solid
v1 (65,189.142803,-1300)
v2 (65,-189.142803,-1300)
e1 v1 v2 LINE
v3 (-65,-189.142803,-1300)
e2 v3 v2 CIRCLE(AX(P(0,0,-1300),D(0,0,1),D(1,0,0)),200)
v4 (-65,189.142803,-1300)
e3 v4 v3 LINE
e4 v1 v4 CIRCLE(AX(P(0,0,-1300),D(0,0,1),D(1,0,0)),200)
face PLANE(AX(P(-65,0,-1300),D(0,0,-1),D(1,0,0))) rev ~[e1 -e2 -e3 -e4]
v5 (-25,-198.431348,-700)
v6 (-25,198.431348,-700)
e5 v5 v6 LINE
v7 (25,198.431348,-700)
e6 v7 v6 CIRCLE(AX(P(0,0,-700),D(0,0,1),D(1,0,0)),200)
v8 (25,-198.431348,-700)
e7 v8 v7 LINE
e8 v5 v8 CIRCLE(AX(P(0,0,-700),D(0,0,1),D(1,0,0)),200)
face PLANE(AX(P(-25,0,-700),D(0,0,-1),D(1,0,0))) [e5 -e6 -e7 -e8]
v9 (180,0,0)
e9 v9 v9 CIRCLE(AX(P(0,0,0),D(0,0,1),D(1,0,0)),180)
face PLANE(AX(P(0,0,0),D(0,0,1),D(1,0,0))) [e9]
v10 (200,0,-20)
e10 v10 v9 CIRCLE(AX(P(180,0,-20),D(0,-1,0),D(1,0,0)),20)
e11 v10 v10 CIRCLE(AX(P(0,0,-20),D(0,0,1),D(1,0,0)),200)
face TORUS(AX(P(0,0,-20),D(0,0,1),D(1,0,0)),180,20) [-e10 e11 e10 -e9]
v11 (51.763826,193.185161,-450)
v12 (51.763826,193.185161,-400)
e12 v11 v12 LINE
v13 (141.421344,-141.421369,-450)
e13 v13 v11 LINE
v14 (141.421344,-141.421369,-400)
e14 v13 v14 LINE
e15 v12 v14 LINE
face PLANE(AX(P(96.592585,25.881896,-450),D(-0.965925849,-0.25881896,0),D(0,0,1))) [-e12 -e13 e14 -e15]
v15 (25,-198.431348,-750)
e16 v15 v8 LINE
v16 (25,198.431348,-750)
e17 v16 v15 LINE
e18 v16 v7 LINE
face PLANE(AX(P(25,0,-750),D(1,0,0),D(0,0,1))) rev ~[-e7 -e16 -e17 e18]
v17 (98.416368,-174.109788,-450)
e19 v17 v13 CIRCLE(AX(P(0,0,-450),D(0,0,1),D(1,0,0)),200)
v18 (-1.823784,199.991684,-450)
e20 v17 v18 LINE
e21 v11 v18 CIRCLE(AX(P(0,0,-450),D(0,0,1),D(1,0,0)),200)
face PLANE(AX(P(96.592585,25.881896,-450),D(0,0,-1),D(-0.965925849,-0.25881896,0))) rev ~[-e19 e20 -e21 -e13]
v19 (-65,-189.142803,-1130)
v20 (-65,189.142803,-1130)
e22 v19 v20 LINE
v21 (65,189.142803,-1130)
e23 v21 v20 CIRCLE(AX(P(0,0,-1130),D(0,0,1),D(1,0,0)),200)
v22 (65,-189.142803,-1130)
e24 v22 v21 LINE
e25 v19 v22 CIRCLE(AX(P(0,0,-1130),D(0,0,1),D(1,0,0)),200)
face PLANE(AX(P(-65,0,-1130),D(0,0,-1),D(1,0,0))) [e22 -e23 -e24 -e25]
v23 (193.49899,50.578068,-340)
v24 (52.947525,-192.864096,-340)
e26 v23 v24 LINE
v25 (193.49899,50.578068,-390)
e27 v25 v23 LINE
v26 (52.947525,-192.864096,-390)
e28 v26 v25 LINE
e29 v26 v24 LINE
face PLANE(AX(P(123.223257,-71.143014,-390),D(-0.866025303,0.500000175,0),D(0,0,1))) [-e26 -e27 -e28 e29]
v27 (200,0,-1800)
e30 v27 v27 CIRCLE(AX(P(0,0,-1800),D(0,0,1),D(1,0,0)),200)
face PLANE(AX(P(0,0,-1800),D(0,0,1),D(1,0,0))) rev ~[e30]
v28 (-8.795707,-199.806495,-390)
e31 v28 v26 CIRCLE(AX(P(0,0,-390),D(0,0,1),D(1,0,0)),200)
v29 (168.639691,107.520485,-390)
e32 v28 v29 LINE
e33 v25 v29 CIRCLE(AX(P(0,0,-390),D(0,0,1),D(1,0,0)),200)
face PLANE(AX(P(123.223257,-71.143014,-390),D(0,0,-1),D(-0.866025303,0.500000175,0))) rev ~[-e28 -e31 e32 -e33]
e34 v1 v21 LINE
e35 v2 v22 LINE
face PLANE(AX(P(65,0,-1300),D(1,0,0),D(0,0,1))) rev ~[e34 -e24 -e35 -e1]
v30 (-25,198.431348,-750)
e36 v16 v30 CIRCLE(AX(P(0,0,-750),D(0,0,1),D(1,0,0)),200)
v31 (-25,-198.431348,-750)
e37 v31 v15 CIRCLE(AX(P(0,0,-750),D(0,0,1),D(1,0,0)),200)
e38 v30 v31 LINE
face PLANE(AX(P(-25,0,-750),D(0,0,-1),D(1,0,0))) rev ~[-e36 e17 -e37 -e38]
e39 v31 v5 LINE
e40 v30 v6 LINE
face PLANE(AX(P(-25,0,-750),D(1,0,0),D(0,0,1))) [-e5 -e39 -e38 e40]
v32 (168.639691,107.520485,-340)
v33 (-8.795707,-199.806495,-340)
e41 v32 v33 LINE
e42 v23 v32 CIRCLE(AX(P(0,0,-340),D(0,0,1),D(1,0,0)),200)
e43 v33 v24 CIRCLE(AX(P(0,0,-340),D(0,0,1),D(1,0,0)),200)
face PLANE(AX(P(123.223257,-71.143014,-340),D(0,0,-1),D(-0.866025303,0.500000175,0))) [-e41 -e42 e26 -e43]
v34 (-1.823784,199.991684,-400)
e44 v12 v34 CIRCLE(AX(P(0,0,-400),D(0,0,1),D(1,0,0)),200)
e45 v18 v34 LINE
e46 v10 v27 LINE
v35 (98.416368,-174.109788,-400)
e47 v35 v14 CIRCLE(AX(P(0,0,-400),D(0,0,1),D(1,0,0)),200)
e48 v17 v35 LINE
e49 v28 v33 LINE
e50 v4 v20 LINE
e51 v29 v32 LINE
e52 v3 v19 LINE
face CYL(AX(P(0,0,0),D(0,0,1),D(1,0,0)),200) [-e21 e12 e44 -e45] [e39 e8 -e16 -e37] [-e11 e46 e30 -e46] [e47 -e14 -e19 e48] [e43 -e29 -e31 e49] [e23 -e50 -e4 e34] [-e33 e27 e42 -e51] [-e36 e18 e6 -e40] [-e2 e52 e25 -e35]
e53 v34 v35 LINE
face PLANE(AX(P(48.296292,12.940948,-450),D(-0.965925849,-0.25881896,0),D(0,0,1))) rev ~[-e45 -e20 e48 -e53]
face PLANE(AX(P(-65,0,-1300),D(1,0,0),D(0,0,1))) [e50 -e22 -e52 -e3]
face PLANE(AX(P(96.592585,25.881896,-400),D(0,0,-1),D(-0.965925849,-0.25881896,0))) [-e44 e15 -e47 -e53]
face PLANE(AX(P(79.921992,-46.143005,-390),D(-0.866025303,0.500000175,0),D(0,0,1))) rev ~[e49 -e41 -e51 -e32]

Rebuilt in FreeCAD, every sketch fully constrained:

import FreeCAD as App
import Part
import Sketcher

V = App.Vector


def edges_at(feature, points):
    """Names of the edges that pass closest to the given points."""
    edges = feature.Shape.Edges
    near = lambda p: min(range(len(edges)), key=lambda i: edges[i].distToShape(Part.Vertex(*p))[0])
    return sorted({f"Edge{near(p) + 1}" for p in points})


def add_polygon(sketch, points):
    """Adds a closed chain of lines whose ends are joined by coincident constraints."""
    first, n = sketch.GeometryCount, len(points)
    for a, b in zip(points, points[1:] + points[:1]):
        sketch.addGeometry(Part.LineSegment(App.Vector(*a, 0), App.Vector(*b, 0)), False)
    for i in range(n):
        sketch.addConstraint(Sketcher.Constraint("Coincident", first + i, 2, first + (i + 1) % n, 1))

doc = App.newDocument("Part")
body = doc.addObject("PartDesign::Body", "Body")

# Sketch on XY plane
sketch1 = body.newObject("Sketcher::SketchObject", "Sketch")
sketch1.AttachmentSupport = (doc.getObject("XY_Plane"), [""])
sketch1.MapMode = "FlatFace"
sketch1.addGeometry(Part.Circle(V(0, 0, 0), V(0, 0, 1), 200), False)
sketch1.addConstraint([
    Sketcher.Constraint("Coincident", 0, 3, -1, 1),
    Sketcher.Constraint("Diameter", 0, 400.0),
])
pad1 = body.newObject("PartDesign::Pad", "Pad")
pad1.Profile = sketch1
pad1.Length = 1800
pad1.Reversed = True

# Sketch on XZ plane
sketch2 = body.newObject("Sketcher::SketchObject", "Sketch001")
sketch2.AttachmentSupport = (doc.getObject("XZ_Plane"), [""])
sketch2.MapMode = "FlatFace"
add_polygon(sketch2, [(-65, -1130), (-65, -1300), (65, -1300), (65, -1130)])  # lines 0-3
sketch2.addConstraint([
    Sketcher.Constraint("Vertical", 0),
    Sketcher.Constraint("Horizontal", 1),
    Sketcher.Constraint("Vertical", 2),
    Sketcher.Constraint("Horizontal", 3),
    Sketcher.Constraint("DistanceX", 1, 1, 1, 2, 130.0),
    Sketcher.Constraint("DistanceY", 0, 2, 0, 1, 170.0),
    Sketcher.Constraint("DistanceX", 0, 2, -1, 1, 65.0),
    Sketcher.Constraint("DistanceY", 0, 2, -1, 1, 1300.0),
])
pocket1 = body.newObject("PartDesign::Pocket", "Pocket")
pocket1.Profile = sketch2
pocket1.Length = 1000
pocket1.Midplane = True

# Sketch on XZ plane
sketch3 = body.newObject("Sketcher::SketchObject", "Sketch002")
sketch3.AttachmentSupport = (doc.getObject("XZ_Plane"), [""])
sketch3.MapMode = "FlatFace"
add_polygon(sketch3, [(-25, -700), (-25, -750), (25, -750), (25, -700)])  # lines 0-3
sketch3.addConstraint([
    Sketcher.Constraint("Vertical", 0),
    Sketcher.Constraint("Horizontal", 1),
    Sketcher.Constraint("Vertical", 2),
    Sketcher.Constraint("Horizontal", 3),
    Sketcher.Constraint("Equal", 3, 0),
    Sketcher.Constraint("DistanceX", 1, 1, 1, 2, 50.0),
    Sketcher.Constraint("DistanceX", 0, 2, -1, 1, 25.0),
    Sketcher.Constraint("DistanceY", 0, 2, -1, 1, 750.0),
])
pocket2 = body.newObject("PartDesign::Pocket", "Pocket001")
pocket2.Profile = sketch3
pocket2.Length = 1000
pocket2.Midplane = True

# Sketch on an angled plane
sketch4 = body.newObject("Sketcher::SketchObject", "Sketch003")
sketch4.Placement = App.Placement(V(0, 0, 0), App.Rotation(V(-0.965925849, -0.25881896, 0), V(0, 0, 1), V(-0.25881896, 0.965925849, 0), "ZXY"))
add_polygon(sketch4, [(-100, -400), (-100, -450), (-50, -450), (-50, -400)])  # lines 0-3
sketch4.addConstraint([
    Sketcher.Constraint("Vertical", 0),
    Sketcher.Constraint("Horizontal", 1),
    Sketcher.Constraint("Vertical", 2),
    Sketcher.Constraint("Horizontal", 3),
    Sketcher.Constraint("Equal", 3, 0),
    Sketcher.Constraint("DistanceX", 1, 1, 1, 2, 50.0),
    Sketcher.Constraint("DistanceX", 0, 2, -1, 1, 100.0),
    Sketcher.Constraint("DistanceY", 0, 2, -1, 1, 450.0),
])
pocket3 = body.newObject("PartDesign::Pocket", "Pocket002")
pocket3.Profile = sketch4
pocket3.Length = 1000
pocket3.Midplane = True

# Sketch on an angled plane
sketch5 = body.newObject("Sketcher::SketchObject", "Sketch004")
sketch5.Placement = App.Placement(V(0, 0, 0), App.Rotation(V(-0.866025303, 0.500000175, 0), V(0, 0, 1), V(0.500000175, 0.866025303, 0), "ZXY"))
add_polygon(sketch5, [(-142.285978, -340), (-142.285978, -390), (-92.285978, -390), (-92.285978, -340)])  # lines 0-3
sketch5.addConstraint([
    Sketcher.Constraint("Vertical", 0),
    Sketcher.Constraint("Horizontal", 1),
    Sketcher.Constraint("Vertical", 2),
    Sketcher.Constraint("Horizontal", 3),
    Sketcher.Constraint("Equal", 3, 0),
    Sketcher.Constraint("DistanceX", 1, 1, 1, 2, 50.0),
    Sketcher.Constraint("DistanceY", 0, 2, -1, 1, 390.0),
    Sketcher.Constraint("DistanceX", 0, 2, -1, 1, 142.285978),
])
pocket4 = body.newObject("PartDesign::Pocket", "Pocket003")
pocket4.Profile = sketch5
pocket4.Length = 1000
pocket4.Midplane = True
doc.recompute()

fillet = body.newObject("PartDesign::Fillet", "Fillet")
fillet.Base = (pocket4, edges_at(pocket4, [(-200, 0, 0)]))
fillet.Radius = 20

doc.recompute()
